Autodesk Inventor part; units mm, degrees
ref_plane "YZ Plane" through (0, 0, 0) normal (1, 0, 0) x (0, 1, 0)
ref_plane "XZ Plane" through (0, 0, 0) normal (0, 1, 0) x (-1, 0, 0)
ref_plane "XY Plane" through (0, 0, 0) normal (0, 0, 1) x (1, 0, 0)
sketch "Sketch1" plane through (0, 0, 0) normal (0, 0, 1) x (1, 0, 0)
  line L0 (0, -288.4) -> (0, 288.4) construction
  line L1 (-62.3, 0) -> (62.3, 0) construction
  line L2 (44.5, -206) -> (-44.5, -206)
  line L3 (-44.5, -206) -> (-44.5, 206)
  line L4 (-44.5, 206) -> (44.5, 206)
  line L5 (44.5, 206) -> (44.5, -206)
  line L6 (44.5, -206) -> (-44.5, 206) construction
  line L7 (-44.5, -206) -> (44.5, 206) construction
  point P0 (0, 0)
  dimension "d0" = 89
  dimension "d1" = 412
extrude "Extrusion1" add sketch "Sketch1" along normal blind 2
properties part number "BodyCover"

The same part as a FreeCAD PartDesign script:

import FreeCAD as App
import Part
import Sketcher
from FreeCAD import Vector


def add_polygon(sketch, points):
    """Adds a closed chain of lines whose ends are joined by coincident constraints."""
    first, n = sketch.GeometryCount, len(points)
    for a, b in zip(points, points[1:] + points[:1]):
        sketch.addGeometry(Part.LineSegment(App.Vector(*a, 0), App.Vector(*b, 0)), False)
    for i in range(n):
        sketch.addConstraint(Sketcher.Constraint("Coincident", first + i, 2, first + (i + 1) % n, 1))

doc = App.newDocument("Part")
body = doc.addObject("PartDesign::Body", "Body")

sketch1 = body.newObject("Sketcher::SketchObject", "Sketch")
sketch1.AttachmentSupport = (doc.getObject("XY_Plane"), [""])
sketch1.MapMode = "FlatFace"
add_polygon(sketch1, [(-44.5, -206), (44.5, -206), (44.5, 206), (-44.5, 206)])
sketch1.addConstraint([
    Sketcher.Constraint("Horizontal", 0),
    Sketcher.Constraint("Vertical", 1),
    Sketcher.Constraint("Horizontal", 2),
    Sketcher.Constraint("Vertical", 3),
    Sketcher.Constraint("Symmetric", 0, 2, 2, 2, -1, 1),
    Sketcher.Constraint("DistanceX", 0, 1, 0, 2, 89.0),
    Sketcher.Constraint("DistanceY", 1, 1, 1, 2, 412.0),
])
pad1 = body.newObject("PartDesign::Pad", "Pad")
pad1.Profile = sketch1
pad1.Length = 2

doc.recompute()
